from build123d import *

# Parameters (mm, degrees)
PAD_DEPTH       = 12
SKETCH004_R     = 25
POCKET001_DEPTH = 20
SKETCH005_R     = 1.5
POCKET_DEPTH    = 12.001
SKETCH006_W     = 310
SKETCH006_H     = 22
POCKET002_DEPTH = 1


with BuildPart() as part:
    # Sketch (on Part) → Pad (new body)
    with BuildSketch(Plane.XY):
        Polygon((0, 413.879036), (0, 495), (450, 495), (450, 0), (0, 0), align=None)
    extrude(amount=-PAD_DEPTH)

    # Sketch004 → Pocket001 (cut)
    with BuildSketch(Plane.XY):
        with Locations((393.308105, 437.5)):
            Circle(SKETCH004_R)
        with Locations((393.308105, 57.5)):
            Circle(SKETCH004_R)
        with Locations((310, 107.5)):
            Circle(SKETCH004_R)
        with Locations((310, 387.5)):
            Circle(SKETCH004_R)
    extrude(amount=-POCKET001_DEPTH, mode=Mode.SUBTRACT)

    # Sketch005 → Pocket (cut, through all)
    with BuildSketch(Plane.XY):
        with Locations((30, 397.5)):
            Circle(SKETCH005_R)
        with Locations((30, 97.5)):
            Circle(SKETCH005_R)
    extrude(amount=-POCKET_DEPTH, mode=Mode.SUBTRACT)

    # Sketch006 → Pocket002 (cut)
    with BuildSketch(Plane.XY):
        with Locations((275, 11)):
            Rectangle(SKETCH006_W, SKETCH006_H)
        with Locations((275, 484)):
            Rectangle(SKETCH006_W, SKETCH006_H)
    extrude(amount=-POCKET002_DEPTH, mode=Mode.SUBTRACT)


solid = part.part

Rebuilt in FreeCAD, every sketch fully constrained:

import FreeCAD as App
import Part
import Sketcher
from FreeCAD import Vector

doc = App.newDocument("Part")
body = doc.addObject("PartDesign::Body", "Body")

# Sketch on XY plane
sketch1 = doc.addObject("Sketcher::SketchObject", "Sketch")
body.addObject(sketch1)
sketch1.AttachmentSupport = (doc.XY_Plane, [""])
sketch1.MapMode = "FlatFace"
sketch1.addGeometry(Part.LineSegment(Vector(0, 495, 0), Vector(0, 0, 0)), False)
sketch1.addGeometry(Part.LineSegment(Vector(0, 0, 0), Vector(450, 0, 0)), False)
sketch1.addGeometry(Part.LineSegment(Vector(450, 0, 0), Vector(450, 495, 0)), False)
sketch1.addGeometry(Part.LineSegment(Vector(450, 495, 0), Vector(0, 495, 0)), False)
sketch1.addConstraint(Sketcher.Constraint("Coincident", 0, 2, 1, 1))
sketch1.addConstraint(Sketcher.Constraint("Coincident", 1, 2, 2, 1))
sketch1.addConstraint(Sketcher.Constraint("Coincident", 2, 2, 3, 1))
sketch1.addConstraint(Sketcher.Constraint("Coincident", 3, 2, 0, 1))
sketch1.addConstraint(Sketcher.Constraint("Vertical", 0))
sketch1.addConstraint(Sketcher.Constraint("Horizontal", 1))
sketch1.addConstraint(Sketcher.Constraint("Vertical", 2))
sketch1.addConstraint(Sketcher.Constraint("Horizontal", 3))
sketch1.addConstraint(Sketcher.Constraint("Coincident", 0, 2, -1, 1))
sketch1.addConstraint(Sketcher.Constraint("DistanceX", 1, 1, 1, 2, 450.0))
sketch1.addConstraint(Sketcher.Constraint("DistanceY", 0, 2, 0, 1, 495.0))
pad1 = doc.addObject("PartDesign::Pad", "Pad")
body.addObject(pad1)
pad1.Profile = sketch1
pad1.Length = 12
pad1.Reversed = True

# Sketch on XY plane
sketch2 = doc.addObject("Sketcher::SketchObject", "Sketch001")
body.addObject(sketch2)
sketch2.AttachmentSupport = (doc.XY_Plane, [""])
sketch2.MapMode = "FlatFace"
sketch2.addGeometry(Part.Circle(Vector(393, 438, 0), Vector(0, 0, 1), 25), False)
sketch2.addGeometry(Part.Circle(Vector(393, 58, 0), Vector(0, 0, 1), 25), False)
sketch2.addGeometry(Part.Circle(Vector(310, 108, 0), Vector(0, 0, 1), 25), False)
sketch2.addGeometry(Part.Circle(Vector(310, 388, 0), Vector(0, 0, 1), 25), False)
sketch2.addConstraint(Sketcher.Constraint("Equal", 0, 1))
sketch2.addConstraint(Sketcher.Constraint("Equal", 1, 2))
sketch2.addConstraint(Sketcher.Constraint("Equal", 2, 3))
sketch2.addConstraint(Sketcher.Constraint("Vertical", 0, 3, 1, 3))
sketch2.addConstraint(Sketcher.Constraint("Vertical", 2, 3, 3, 3))
sketch2.addConstraint(Sketcher.Constraint("Diameter", 0, 50.0))
sketch2.addConstraint(Sketcher.Constraint("DistanceX", -1, 1, 2, 3, 310.0))
sketch2.addConstraint(Sketcher.Constraint("DistanceY", 1, 3, 0, 3, 380.0))
sketch2.addConstraint(Sketcher.Constraint("DistanceY", 1, 3, 2, 3, 50.0))
sketch2.addConstraint(Sketcher.Constraint("DistanceY", 3, 3, 0, 3, 50.0))
sketch2.addConstraint(Sketcher.Constraint("DistanceY", -1, 1, 0, 3, 437.5))
sketch2.addConstraint(Sketcher.Constraint("DistanceX", -1, 1, 0, 3, 393.308105))
pocket1 = doc.addObject("PartDesign::Pocket", "Pocket")
body.addObject(pocket1)
pocket1.Profile = sketch2
pocket1.Length = 20

# Sketch on XY plane
sketch3 = doc.addObject("Sketcher::SketchObject", "Sketch002")
body.addObject(sketch3)
sketch3.AttachmentSupport = (doc.XY_Plane, [""])
sketch3.MapMode = "FlatFace"
sketch3.addGeometry(Part.Circle(Vector(30, 397.5, 0), Vector(0, 0, 1), 1.5), False)
sketch3.addGeometry(Part.Circle(Vector(30, 97.5, 0), Vector(0, 0, 1), 1.5), False)
sketch3.addConstraint(Sketcher.Constraint("Equal", 0, 1))
sketch3.addConstraint(Sketcher.Constraint("Vertical", 0, 3, 1, 3))
sketch3.addConstraint(Sketcher.Constraint("Diameter", 0, 3.0))
sketch3.addConstraint(Sketcher.Constraint("DistanceX", -1, 1, 0, 3, 30.0))
sketch3.addConstraint(Sketcher.Constraint("DistanceY", 1, 3, 0, 3, 300.0))
sketch3.addConstraint(Sketcher.Constraint("DistanceY", -1, 1, 0, 3, 397.5))
pocket2 = doc.addObject("PartDesign::Pocket", "Pocket001")
body.addObject(pocket2)
pocket2.Profile = sketch3
pocket2.Type = "ThroughAll"

# Sketch on XY plane
sketch4 = doc.addObject("Sketcher::SketchObject", "Sketch003")
body.addObject(sketch4)
sketch4.AttachmentSupport = (doc.XY_Plane, [""])
sketch4.MapMode = "FlatFace"
sketch4.addGeometry(Part.LineSegment(Vector(120, 22, 0), Vector(120, 0, 0)), False)
sketch4.addGeometry(Part.LineSegment(Vector(120, 0, 0), Vector(430, 0, 0)), False)
sketch4.addGeometry(Part.LineSegment(Vector(430, 0, 0), Vector(430, 22, 0)), False)
sketch4.addGeometry(Part.LineSegment(Vector(430, 22, 0), Vector(120, 22, 0)), False)
sketch4.addGeometry(Part.LineSegment(Vector(120, 495, 0), Vector(120, 473, 0)), False)
sketch4.addGeometry(Part.LineSegment(Vector(120, 473, 0), Vector(430, 473, 0)), False)
sketch4.addGeometry(Part.LineSegment(Vector(430, 473, 0), Vector(430, 495, 0)), False)
sketch4.addGeometry(Part.LineSegment(Vector(430, 495, 0), Vector(120, 495, 0)), False)
sketch4.addConstraint(Sketcher.Constraint("Coincident", 0, 2, 1, 1))
sketch4.addConstraint(Sketcher.Constraint("Coincident", 1, 2, 2, 1))
sketch4.addConstraint(Sketcher.Constraint("Coincident", 2, 2, 3, 1))
sketch4.addConstraint(Sketcher.Constraint("Coincident", 3, 2, 0, 1))
sketch4.addConstraint(Sketcher.Constraint("Coincident", 4, 2, 5, 1))
sketch4.addConstraint(Sketcher.Constraint("Coincident", 5, 2, 6, 1))
sketch4.addConstraint(Sketcher.Constraint("Coincident", 6, 2, 7, 1))
sketch4.addConstraint(Sketcher.Constraint("Coincident", 7, 2, 4, 1))
sketch4.addConstraint(Sketcher.Constraint("Vertical", 0))
sketch4.addConstraint(Sketcher.Constraint("Horizontal", 1))
sketch4.addConstraint(Sketcher.Constraint("Vertical", 2))
sketch4.addConstraint(Sketcher.Constraint("Horizontal", 3))
sketch4.addConstraint(Sketcher.Constraint("Vertical", 4))
sketch4.addConstraint(Sketcher.Constraint("Horizontal", 5))
sketch4.addConstraint(Sketcher.Constraint("Vertical", 6))
sketch4.addConstraint(Sketcher.Constraint("Horizontal", 7))
sketch4.addConstraint(Sketcher.Constraint("PointOnObject", 0, 2, -1))
sketch4.addConstraint(Sketcher.Constraint("Vertical", 3, 2, 4, 2))
sketch4.addConstraint(Sketcher.Constraint("Vertical", 2, 2, 5, 2))
sketch4.addConstraint(Sketcher.Constraint("Equal", 2, 4))
sketch4.addConstraint(Sketcher.Constraint("DistanceX", 1, 1, 1, 2, 310.0))
sketch4.addConstraint(Sketcher.Constraint("DistanceY", 0, 2, 0, 1, 22.0))
sketch4.addConstraint(Sketcher.Constraint("DistanceX", -1, 1, 0, 2, 120.0))
sketch4.addConstraint(Sketcher.Constraint("DistanceY", -1, 1, 4, 2, 473.0))
pocket3 = doc.addObject("PartDesign::Pocket", "Pocket002")
body.addObject(pocket3)
pocket3.Profile = sketch4
pocket3.Length = 1

doc.recompute()
